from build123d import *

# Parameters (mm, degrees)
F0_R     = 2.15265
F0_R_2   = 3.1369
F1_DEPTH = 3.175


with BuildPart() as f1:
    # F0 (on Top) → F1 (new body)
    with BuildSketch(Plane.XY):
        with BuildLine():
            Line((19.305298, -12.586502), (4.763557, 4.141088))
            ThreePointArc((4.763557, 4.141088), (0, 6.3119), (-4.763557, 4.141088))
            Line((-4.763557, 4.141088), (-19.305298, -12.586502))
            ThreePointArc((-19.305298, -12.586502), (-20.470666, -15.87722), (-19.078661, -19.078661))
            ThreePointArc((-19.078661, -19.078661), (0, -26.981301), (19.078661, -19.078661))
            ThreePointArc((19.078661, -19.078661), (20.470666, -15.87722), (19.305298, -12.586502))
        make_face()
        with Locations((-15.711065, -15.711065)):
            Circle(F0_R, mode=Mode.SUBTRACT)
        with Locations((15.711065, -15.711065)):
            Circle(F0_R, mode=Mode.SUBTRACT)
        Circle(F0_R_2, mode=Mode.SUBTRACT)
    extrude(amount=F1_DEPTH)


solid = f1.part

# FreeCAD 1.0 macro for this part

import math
import FreeCAD as App
import Part
import Sketcher

V = App.Vector
Q = App.Units.Quantity

doc = App.newDocument("Part")
body = doc.addObject("PartDesign::Body", "Body")

# Sketch on XY plane
sketch1 = doc.addObject("Sketcher::SketchObject", "Sketch")
body.addObject(sketch1)
sketch1.AttachmentSupport = (doc.XY_Plane, [""])
sketch1.MapMode = "FlatFace"
sketch1.addGeometry(Part.LineSegment(V(19.305298, -12.586502, 0), V(4.763557, 4.141088, 0)), False)
sketch1.addGeometry(Part.ArcOfCircle(Part.Circle(V(0, -0.000001, 0), V(0, 0, 1), 6.311901), math.radians(41.001315), math.radians(138.998685)), False)
sketch1.addGeometry(Part.LineSegment(V(-4.763557, 4.141088, 0), V(-19.305298, -12.586502, 0)), False)
sketch1.addGeometry(Part.ArcOfCircle(Part.Circle(V(-15.711067, -15.711065, 0), V(0, 0, 1), 4.762499), math.radians(138.99868), math.radians(225.000012)), False)
sketch1.addGeometry(Part.ArcOfCircle(Part.Circle(V(0, 0, 0), V(0, 0, 1), 26.981301), math.radians(-134.999999), math.radians(-45.000001)), False)
sketch1.addGeometry(Part.ArcOfCircle(Part.Circle(V(15.711067, -15.711065, 0), V(0, 0, 1), 4.762499), math.radians(-45.000012), math.radians(41.00132)), False)
sketch1.addGeometry(Part.Circle(V(-15.711065, -15.711065, 0), V(0, 0, 1), 2.15265), False)
sketch1.addGeometry(Part.Circle(V(15.711065, -15.711065, 0), V(0, 0, 1), 2.15265), False)
sketch1.addGeometry(Part.Circle(V(0, 0, 0), V(0, 0, 1), 3.1369), False)
sketch1.addConstraint(Sketcher.Constraint("Tangent", 0, 2, 1, 1))
sketch1.addConstraint(Sketcher.Constraint("Tangent", 1, 2, 2, 1))
sketch1.addConstraint(Sketcher.Constraint("Tangent", 2, 2, 3, 1))
sketch1.addConstraint(Sketcher.Constraint("Tangent", 3, 2, 4, 1))
sketch1.addConstraint(Sketcher.Constraint("Tangent", 4, 2, 5, 1))
sketch1.addConstraint(Sketcher.Constraint("Tangent", 5, 2, 0, 1))
sketch1.addConstraint(Sketcher.Constraint("Coincident", 1, 3, -1, 1))
sketch1.addConstraint(Sketcher.Constraint("Coincident", 4, 3, -1, 1))
sketch1.addConstraint(Sketcher.Constraint("Coincident", 8, 3, -1, 1))
sketch1.addConstraint(Sketcher.Constraint("Coincident", 6, 3, 3, 3))
sketch1.addConstraint(Sketcher.Constraint("Coincident", 7, 3, 5, 3))
sketch1.addConstraint(Sketcher.Constraint("Equal", 3, 5))
sketch1.addConstraint(Sketcher.Constraint("Equal", 6, 7))
sketch1.addConstraint(Sketcher.Constraint("Horizontal", 3, 3, 5, 3))
sketch1.addConstraint(Sketcher.Constraint("Diameter", 8, Q("0.247 in")))
sketch1.addConstraint(Sketcher.Constraint("Radius", 3, Q("0.1875 in")))
sketch1.addConstraint(Sketcher.Constraint("Diameter", 6, Q("0.1695 in")))
sketch1.addConstraint(Sketcher.Constraint("Radius", 1, Q("0.2485 in")))
sketch1.addConstraint(Sketcher.Constraint("Radius", 4, 26.981301))
sketch1.addConstraint(Sketcher.Constraint("DistanceX", 2, 2, -1, 1, 19.305298))
pad1 = doc.addObject("PartDesign::Pad", "Pad")
body.addObject(pad1)
pad1.Profile = sketch1
pad1.Length = Q("0.125 in")

doc.recompute()
